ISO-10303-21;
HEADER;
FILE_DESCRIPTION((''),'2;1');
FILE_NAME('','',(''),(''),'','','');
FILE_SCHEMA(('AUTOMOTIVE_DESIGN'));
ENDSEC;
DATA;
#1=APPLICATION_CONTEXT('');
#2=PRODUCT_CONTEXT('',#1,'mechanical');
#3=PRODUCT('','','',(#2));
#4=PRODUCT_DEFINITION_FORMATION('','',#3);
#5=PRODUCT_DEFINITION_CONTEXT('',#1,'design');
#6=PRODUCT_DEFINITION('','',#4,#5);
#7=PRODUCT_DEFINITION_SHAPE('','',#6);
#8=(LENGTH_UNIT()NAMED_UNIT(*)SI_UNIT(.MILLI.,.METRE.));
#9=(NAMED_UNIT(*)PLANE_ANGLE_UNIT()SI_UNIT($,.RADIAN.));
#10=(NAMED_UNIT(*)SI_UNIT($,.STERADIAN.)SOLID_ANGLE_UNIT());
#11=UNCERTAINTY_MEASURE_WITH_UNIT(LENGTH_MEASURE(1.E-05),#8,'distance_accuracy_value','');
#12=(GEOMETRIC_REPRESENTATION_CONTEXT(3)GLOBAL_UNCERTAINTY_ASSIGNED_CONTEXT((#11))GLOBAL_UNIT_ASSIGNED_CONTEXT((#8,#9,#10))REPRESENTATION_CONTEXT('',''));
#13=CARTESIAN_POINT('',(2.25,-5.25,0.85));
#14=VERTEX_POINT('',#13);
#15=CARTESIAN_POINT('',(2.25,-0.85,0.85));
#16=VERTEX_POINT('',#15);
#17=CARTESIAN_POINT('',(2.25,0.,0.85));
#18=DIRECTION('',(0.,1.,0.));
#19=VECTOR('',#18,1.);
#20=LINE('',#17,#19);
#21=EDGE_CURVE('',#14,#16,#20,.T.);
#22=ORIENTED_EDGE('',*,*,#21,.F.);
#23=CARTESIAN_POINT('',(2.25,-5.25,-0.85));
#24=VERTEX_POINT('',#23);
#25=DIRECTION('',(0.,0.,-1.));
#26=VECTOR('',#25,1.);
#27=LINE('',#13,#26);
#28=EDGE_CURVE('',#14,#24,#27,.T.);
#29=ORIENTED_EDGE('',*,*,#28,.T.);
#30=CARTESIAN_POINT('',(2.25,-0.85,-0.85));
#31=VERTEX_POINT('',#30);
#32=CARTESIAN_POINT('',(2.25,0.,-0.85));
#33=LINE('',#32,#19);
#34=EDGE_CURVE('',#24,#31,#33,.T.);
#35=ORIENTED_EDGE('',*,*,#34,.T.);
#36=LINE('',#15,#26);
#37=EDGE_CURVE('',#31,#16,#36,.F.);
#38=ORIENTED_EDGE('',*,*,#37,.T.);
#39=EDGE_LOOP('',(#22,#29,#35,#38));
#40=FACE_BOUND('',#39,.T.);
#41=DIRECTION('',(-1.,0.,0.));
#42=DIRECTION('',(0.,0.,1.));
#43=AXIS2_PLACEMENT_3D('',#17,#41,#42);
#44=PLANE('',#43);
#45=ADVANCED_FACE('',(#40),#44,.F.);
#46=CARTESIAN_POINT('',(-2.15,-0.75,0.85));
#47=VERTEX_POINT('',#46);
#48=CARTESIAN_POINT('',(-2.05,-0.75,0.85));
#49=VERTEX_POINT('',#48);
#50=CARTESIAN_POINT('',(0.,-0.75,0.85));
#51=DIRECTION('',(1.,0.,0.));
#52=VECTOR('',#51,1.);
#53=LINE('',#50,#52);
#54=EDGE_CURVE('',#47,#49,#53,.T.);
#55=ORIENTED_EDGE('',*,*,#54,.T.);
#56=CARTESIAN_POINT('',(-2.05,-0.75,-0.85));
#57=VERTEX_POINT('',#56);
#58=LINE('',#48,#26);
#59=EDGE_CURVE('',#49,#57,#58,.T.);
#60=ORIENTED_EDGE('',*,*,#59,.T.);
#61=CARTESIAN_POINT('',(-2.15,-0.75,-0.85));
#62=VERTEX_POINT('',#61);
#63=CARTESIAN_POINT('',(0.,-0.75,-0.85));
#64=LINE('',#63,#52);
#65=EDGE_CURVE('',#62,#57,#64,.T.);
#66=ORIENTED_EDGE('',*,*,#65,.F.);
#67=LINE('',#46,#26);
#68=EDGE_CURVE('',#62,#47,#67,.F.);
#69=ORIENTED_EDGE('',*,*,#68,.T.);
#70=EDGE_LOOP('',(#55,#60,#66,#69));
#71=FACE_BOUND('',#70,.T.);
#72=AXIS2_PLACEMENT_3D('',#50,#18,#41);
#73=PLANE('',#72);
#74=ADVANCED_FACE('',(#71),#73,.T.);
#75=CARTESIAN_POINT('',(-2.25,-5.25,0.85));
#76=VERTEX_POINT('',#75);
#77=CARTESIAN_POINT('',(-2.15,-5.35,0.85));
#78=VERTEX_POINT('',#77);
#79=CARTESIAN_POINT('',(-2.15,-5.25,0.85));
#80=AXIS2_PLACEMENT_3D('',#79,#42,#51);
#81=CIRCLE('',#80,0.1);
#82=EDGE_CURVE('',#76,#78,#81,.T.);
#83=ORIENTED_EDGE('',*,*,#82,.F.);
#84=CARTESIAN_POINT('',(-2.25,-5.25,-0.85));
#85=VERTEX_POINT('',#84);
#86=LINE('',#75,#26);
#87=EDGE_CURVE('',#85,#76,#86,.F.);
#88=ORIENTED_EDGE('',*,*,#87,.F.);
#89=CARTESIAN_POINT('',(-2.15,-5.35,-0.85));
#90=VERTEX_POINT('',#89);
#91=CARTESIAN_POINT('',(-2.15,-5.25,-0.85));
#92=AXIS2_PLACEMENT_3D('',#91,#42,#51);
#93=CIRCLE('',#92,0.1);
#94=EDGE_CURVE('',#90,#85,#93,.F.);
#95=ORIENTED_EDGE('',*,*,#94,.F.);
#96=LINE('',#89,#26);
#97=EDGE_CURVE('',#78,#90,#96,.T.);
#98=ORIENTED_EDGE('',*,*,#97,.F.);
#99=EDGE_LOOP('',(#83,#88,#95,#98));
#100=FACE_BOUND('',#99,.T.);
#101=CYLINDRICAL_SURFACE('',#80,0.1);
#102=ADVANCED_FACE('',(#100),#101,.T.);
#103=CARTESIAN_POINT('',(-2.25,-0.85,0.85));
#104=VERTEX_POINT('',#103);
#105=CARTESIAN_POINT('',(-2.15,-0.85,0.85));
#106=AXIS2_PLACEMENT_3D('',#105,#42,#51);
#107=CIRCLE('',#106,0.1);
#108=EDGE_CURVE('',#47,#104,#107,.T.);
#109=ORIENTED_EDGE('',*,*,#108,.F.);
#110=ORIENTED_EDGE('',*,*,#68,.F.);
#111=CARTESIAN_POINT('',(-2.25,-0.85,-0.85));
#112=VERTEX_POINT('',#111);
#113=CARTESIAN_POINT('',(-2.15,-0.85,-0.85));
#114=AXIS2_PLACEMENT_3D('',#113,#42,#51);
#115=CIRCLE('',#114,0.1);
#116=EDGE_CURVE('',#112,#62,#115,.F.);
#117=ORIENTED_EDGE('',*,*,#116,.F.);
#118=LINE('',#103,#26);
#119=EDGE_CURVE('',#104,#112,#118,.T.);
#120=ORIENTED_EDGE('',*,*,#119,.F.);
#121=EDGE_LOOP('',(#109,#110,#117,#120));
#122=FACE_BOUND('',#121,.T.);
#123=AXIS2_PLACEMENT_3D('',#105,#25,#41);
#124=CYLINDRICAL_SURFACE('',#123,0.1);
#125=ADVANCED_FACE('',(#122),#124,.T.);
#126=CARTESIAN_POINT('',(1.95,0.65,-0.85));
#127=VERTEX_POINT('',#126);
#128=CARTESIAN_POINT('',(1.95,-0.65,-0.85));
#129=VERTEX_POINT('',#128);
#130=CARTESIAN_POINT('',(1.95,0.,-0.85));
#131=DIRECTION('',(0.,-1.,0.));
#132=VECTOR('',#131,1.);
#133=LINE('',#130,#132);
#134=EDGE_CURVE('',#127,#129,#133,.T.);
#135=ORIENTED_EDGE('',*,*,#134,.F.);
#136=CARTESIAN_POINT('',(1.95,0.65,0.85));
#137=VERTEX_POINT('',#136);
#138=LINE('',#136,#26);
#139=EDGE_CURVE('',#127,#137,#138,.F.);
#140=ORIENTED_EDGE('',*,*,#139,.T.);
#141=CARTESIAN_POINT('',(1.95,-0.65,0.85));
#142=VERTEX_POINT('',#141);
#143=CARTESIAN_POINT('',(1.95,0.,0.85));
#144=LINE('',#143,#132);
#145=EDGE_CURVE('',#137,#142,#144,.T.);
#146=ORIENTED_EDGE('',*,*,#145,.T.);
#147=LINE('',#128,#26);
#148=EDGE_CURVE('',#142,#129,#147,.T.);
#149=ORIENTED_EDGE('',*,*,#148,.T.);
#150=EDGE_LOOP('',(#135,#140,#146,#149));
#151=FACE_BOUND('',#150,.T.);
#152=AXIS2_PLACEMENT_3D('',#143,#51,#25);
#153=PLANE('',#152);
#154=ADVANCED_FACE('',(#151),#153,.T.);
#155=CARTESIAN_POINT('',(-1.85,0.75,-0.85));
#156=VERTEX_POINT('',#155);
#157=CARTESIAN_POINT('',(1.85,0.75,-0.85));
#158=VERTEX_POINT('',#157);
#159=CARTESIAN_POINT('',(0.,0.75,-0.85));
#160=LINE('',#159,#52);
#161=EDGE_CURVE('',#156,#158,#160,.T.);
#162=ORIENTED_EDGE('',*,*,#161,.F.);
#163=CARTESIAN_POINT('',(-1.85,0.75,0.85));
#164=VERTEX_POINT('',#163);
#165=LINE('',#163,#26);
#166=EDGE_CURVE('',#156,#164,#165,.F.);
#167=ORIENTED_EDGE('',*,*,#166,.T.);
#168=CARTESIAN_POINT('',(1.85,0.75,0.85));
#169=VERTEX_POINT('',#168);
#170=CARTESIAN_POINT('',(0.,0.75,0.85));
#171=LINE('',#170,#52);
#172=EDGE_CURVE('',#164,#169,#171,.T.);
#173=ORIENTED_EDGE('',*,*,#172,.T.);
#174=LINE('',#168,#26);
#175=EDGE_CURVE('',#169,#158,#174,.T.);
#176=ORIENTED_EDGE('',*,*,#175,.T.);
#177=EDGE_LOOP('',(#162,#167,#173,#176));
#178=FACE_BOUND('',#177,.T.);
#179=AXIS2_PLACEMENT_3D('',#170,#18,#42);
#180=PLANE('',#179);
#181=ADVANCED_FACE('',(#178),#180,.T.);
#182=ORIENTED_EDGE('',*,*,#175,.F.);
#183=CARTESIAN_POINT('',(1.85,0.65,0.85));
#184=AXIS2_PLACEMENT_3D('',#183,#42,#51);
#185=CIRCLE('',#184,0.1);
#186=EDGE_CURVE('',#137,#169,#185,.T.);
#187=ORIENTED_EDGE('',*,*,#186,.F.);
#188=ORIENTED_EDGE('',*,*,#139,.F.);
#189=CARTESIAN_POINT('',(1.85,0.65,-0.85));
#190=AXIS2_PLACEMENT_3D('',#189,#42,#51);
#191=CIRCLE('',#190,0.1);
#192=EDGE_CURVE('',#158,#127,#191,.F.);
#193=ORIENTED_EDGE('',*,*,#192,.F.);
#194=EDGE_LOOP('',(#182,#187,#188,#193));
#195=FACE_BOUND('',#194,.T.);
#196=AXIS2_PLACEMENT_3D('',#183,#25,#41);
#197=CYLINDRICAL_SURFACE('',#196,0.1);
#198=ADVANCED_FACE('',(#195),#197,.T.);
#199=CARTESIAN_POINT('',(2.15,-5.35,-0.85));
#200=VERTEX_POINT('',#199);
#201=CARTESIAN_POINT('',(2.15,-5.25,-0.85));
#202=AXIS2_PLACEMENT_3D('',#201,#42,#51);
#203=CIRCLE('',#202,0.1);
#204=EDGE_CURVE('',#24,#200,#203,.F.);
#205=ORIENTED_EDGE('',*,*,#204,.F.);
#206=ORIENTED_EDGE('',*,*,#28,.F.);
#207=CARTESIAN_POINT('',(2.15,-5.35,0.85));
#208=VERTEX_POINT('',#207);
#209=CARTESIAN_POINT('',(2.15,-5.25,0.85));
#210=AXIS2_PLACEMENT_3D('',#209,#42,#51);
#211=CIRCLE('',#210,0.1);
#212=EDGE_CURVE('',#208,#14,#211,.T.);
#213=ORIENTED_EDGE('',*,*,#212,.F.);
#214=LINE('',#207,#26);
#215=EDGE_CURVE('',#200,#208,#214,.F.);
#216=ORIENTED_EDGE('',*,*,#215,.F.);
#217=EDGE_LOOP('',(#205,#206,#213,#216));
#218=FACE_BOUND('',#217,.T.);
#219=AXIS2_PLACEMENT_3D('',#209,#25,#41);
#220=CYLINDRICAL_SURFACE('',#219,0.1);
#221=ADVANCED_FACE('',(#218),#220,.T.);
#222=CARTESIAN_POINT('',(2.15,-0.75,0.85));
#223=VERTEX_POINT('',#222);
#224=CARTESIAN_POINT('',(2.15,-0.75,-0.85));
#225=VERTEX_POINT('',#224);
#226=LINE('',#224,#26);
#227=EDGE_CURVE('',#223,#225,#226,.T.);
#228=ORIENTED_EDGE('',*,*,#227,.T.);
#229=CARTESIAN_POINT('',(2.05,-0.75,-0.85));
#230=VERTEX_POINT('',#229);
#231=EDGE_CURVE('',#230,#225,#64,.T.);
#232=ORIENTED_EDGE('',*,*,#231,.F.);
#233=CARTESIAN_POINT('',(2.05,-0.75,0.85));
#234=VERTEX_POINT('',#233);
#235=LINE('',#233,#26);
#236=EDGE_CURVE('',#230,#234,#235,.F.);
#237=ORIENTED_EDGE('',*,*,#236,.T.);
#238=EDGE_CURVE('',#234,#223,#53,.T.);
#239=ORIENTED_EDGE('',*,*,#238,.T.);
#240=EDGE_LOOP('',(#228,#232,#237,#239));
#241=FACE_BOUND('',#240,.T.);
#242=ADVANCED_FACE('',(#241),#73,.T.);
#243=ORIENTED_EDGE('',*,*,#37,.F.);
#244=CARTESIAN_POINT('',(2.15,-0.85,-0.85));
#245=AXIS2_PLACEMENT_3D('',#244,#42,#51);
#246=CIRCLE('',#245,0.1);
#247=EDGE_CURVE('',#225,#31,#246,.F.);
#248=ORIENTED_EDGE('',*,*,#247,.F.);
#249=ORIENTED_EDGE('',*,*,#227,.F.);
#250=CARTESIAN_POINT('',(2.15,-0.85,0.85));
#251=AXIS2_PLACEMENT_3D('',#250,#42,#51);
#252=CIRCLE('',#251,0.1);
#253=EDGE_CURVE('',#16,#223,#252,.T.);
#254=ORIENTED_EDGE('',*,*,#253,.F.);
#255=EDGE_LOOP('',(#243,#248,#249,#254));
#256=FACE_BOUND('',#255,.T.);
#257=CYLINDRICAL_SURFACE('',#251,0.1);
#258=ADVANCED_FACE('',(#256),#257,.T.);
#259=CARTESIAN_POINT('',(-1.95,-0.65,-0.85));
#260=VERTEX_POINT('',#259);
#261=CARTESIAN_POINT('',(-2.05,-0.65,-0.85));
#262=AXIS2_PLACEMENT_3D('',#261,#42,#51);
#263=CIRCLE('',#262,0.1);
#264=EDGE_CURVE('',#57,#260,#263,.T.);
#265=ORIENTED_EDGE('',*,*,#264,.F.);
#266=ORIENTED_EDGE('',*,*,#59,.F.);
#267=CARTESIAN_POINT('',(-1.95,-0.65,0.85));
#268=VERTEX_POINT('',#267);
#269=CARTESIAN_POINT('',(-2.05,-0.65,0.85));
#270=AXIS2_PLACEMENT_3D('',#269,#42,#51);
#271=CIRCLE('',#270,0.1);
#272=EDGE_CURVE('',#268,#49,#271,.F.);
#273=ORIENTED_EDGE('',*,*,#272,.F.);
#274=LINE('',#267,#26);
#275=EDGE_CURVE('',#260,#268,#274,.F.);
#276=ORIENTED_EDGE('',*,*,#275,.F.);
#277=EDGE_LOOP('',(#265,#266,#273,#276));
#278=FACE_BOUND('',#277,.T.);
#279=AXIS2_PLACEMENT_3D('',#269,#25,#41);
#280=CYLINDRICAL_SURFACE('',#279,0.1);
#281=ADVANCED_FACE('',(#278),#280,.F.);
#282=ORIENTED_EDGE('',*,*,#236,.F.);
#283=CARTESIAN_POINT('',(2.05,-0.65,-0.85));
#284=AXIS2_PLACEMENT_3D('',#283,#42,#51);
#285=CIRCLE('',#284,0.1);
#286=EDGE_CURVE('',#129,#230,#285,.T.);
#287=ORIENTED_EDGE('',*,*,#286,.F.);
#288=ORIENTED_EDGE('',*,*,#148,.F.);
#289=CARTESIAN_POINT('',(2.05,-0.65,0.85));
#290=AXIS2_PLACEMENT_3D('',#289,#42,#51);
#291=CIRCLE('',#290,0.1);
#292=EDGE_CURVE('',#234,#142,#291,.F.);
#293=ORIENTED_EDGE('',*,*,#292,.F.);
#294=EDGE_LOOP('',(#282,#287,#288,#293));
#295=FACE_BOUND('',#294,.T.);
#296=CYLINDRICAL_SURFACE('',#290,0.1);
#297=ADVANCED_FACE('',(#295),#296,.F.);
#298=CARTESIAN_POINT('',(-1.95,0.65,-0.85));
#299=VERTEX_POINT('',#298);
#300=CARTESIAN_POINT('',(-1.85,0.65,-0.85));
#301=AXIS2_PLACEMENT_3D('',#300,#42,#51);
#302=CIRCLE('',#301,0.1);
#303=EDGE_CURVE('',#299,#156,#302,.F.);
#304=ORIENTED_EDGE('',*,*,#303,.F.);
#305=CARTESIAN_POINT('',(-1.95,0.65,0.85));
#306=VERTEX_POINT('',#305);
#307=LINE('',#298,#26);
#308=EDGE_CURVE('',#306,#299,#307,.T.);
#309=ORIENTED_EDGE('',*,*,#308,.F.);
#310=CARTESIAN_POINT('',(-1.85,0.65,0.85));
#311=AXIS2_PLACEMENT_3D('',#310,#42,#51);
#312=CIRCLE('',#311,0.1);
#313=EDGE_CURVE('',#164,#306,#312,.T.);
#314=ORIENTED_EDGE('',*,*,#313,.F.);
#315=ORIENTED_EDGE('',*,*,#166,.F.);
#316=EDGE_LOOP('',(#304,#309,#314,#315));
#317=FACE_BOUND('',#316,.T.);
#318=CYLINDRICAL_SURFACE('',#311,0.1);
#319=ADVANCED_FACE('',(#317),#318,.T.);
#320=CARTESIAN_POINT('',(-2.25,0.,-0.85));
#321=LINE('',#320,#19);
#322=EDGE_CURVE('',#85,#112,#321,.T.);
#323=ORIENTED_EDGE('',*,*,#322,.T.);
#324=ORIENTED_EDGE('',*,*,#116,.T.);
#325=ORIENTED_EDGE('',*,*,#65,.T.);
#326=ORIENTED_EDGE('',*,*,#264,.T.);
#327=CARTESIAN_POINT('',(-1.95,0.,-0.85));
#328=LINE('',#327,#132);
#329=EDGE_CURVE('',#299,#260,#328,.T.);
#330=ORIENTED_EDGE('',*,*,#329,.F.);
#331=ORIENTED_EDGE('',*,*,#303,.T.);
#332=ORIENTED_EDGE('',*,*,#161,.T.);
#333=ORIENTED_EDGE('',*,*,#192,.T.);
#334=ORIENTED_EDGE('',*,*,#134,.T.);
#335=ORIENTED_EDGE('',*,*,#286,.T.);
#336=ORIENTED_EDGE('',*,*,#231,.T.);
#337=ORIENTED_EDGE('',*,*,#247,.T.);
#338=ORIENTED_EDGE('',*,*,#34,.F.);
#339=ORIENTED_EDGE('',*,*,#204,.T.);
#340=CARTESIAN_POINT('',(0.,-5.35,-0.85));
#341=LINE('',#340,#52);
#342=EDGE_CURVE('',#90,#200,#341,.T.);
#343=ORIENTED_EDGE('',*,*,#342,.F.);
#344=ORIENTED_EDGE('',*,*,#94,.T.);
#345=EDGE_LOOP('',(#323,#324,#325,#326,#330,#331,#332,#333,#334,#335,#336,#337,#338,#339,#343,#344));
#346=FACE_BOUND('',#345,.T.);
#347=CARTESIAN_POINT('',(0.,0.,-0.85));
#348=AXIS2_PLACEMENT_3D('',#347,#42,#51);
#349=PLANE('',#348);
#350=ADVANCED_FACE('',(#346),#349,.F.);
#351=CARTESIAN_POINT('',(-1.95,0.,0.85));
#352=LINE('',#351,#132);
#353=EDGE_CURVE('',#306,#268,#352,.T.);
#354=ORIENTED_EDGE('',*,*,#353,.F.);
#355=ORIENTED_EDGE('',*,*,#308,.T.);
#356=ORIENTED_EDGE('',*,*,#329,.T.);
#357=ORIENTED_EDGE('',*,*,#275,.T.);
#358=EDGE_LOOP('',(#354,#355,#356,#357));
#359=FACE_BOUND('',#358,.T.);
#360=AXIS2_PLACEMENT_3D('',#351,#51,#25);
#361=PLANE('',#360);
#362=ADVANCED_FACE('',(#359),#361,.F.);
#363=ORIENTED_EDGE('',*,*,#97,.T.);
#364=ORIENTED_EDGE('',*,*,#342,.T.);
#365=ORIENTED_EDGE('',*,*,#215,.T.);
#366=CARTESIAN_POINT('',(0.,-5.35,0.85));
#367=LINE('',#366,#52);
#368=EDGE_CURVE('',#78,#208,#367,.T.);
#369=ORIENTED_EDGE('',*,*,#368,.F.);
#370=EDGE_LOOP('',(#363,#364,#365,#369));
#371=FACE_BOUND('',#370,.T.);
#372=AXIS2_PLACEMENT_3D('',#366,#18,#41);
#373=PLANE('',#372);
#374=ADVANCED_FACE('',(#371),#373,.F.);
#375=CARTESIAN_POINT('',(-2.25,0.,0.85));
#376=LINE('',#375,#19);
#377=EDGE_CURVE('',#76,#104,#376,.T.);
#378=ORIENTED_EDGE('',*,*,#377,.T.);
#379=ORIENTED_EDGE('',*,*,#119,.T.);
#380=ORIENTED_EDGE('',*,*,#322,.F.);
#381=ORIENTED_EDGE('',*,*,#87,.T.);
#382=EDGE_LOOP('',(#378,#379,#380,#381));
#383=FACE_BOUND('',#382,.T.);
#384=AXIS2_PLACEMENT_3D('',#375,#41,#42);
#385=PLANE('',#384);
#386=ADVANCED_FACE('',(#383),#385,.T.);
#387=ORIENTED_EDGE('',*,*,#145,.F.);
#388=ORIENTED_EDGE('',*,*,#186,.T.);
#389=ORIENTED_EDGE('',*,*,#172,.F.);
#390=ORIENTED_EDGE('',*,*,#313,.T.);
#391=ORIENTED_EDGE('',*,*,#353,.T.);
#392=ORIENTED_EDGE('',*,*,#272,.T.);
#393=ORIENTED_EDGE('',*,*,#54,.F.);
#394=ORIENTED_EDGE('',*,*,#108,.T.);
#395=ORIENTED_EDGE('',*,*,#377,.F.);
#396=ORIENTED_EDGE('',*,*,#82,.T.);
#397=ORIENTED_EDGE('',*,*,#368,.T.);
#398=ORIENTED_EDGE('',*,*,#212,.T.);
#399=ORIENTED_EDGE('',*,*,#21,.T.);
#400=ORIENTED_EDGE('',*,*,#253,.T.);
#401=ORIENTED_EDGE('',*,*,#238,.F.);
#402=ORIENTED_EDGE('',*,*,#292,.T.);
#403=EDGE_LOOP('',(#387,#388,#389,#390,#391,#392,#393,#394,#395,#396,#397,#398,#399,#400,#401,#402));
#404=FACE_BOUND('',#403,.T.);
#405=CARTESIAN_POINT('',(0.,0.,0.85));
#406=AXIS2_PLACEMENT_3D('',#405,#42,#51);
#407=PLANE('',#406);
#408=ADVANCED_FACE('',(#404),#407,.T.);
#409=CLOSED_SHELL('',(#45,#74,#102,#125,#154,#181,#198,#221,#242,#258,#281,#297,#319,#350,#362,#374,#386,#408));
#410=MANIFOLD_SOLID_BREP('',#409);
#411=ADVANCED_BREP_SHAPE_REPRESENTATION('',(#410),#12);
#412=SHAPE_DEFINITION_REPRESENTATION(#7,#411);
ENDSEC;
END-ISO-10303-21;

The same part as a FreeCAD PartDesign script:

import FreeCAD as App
import Part
import Sketcher
from FreeCAD import Vector


def edges_at(feature, points):
    """Names of the edges that pass closest to the given points."""
    edges = feature.Shape.Edges
    near = lambda p: min(range(len(edges)), key=lambda i: edges[i].distToShape(Part.Vertex(*p))[0])
    return sorted({f"Edge{near(p) + 1}" for p in points})


def add_polygon(sketch, points):
    """Adds a closed chain of lines whose ends are joined by coincident constraints."""
    first, n = sketch.GeometryCount, len(points)
    for a, b in zip(points, points[1:] + points[:1]):
        sketch.addGeometry(Part.LineSegment(App.Vector(*a, 0), App.Vector(*b, 0)), False)
    for i in range(n):
        sketch.addConstraint(Sketcher.Constraint("Coincident", first + i, 2, first + (i + 1) % n, 1))

doc = App.newDocument("Part")
body = doc.addObject("PartDesign::Body", "Body")

sketch1 = doc.addObject("Sketcher::SketchObject", "Sketch")
body.addObject(sketch1)
sketch1.AttachmentSupport = (doc.XY_Plane, [""])
sketch1.MapMode = "FlatFace"
add_polygon(sketch1, [(-1.95, 0.75), (-1.95, -0.75), (-2.25, -0.75), (-2.25, -5.35), (2.25, -5.35), (2.25, -0.75), (1.95, -0.75), (1.95, 0.75)])
sketch1.addConstraint([
    Sketcher.Constraint("Vertical", 0),
    Sketcher.Constraint("Horizontal", 1),
    Sketcher.Constraint("Vertical", 2),
    Sketcher.Constraint("Horizontal", 3),
    Sketcher.Constraint("Vertical", 4),
    Sketcher.Constraint("Horizontal", 5),
    Sketcher.Constraint("Vertical", 6),
    Sketcher.Constraint("Horizontal", 7),
    Sketcher.Constraint("Symmetric", 0, 2, 6, 2, -1, 1),
    Sketcher.Constraint("Symmetric", 1, 2, 4, 2, -2),
    Sketcher.Constraint("DistanceX", 1, 2, 1, 1, 0.3),
    Sketcher.Constraint("DistanceX", 3, 1, 3, 2, 4.5),
    Sketcher.Constraint("DistanceY", 0, 2, 0, 1, 1.5),
    Sketcher.Constraint("DistanceY", 2, 2, 2, 1, 4.6),
])
pad1 = doc.addObject("PartDesign::Pad", "Pad")
body.addObject(pad1)
pad1.Profile = sketch1
pad1.Length = 1.7
pad1.Midplane = True
doc.recompute()

fillet = doc.addObject("PartDesign::Fillet", "Fillet")
body.addObject(fillet)
fillet.Base = (pad1, edges_at(pad1, [
    (1.95, -0.75, 0),
    (2.25, -0.75, 0),
    (2.25, -5.35, 0),
    (-2.25, -5.35, 0),
    (-2.25, -0.75, 0),
    (-1.95, -0.75, 0),
    (-1.95, 0.75, 0),
    (1.95, 0.75, 0),
]))
fillet.Radius = 0.1

doc.recompute()
